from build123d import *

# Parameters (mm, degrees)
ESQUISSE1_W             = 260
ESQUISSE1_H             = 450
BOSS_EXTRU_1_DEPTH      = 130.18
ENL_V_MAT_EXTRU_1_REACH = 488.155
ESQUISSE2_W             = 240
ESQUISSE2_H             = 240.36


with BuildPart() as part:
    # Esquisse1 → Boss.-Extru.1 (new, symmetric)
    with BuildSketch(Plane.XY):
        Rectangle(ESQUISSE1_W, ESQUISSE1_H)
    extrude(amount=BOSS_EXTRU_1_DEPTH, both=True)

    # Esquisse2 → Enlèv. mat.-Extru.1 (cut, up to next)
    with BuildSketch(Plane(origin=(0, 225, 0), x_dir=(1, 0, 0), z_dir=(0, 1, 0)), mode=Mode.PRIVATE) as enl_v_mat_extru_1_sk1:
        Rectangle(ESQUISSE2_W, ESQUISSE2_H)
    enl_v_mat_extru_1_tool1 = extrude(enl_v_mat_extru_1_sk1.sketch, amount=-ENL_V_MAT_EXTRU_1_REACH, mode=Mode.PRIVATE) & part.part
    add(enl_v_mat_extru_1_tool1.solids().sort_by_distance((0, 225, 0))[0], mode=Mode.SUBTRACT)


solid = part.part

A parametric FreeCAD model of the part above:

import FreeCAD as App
import Part
import Sketcher

V = App.Vector
Q = App.Units.Quantity

doc = App.newDocument("Part")
body = doc.addObject("PartDesign::Body", "Body")

# Sketch on XY plane
sketch1 = body.newObject("Sketcher::SketchObject", "Sketch")
sketch1.AttachmentSupport = (doc.getObject("XY_Plane"), [""])
sketch1.MapMode = "FlatFace"
sketch1.addGeometry([
    Part.LineSegment(V(-130, 225, 0), V(-130, -225, 0)),
    Part.LineSegment(V(-130, -225, 0), V(130, -225, 0)),
    Part.LineSegment(V(130, -225, 0), V(130, 225, 0)),
    Part.LineSegment(V(130, 225, 0), V(-130, 225, 0)),
], False)
sketch1.addConstraint([
    Sketcher.Constraint("Coincident", 0, 2, 1, 1),
    Sketcher.Constraint("Coincident", 1, 2, 2, 1),
    Sketcher.Constraint("Coincident", 2, 2, 3, 1),
    Sketcher.Constraint("Coincident", 3, 2, 0, 1),
    Sketcher.Constraint("Vertical", 0),
    Sketcher.Constraint("Horizontal", 1),
    Sketcher.Constraint("Vertical", 2),
    Sketcher.Constraint("Horizontal", 3),
    Sketcher.Constraint("Symmetric", 0, 2, 2, 2, -1, 1),
    Sketcher.Constraint("DistanceX", 1, 1, 1, 2, Q("260 mm")),
    Sketcher.Constraint("DistanceY", 0, 2, 0, 1, Q("450 mm")),
])
pad1 = body.newObject("PartDesign::Pad", "Pad")
pad1.Profile = sketch1
pad1.Length = 260.36
pad1.Midplane = True

# Sketch on XZ plane
sketch2 = body.newObject("Sketcher::SketchObject", "Sketch001")
sketch2.AttachmentSupport = (doc.getObject("XZ_Plane"), [""])
sketch2.MapMode = "FlatFace"
sketch2.AttachmentOffset = App.Placement(V(0, 0, -225), App.Rotation())
sketch2.addGeometry([
    Part.LineSegment(V(-120, -120, 0), V(-120, 120, 0)),
    Part.LineSegment(V(-120, 120, 0), V(120, 120, 0)),
    Part.LineSegment(V(120, 120, 0), V(120, -120, 0)),
    Part.LineSegment(V(120, -120, 0), V(-120, -120, 0)),
], False)
sketch2.addConstraint([
    Sketcher.Constraint("Coincident", 0, 2, 1, 1),
    Sketcher.Constraint("Coincident", 1, 2, 2, 1),
    Sketcher.Constraint("Coincident", 2, 2, 3, 1),
    Sketcher.Constraint("Coincident", 3, 2, 0, 1),
    Sketcher.Constraint("Vertical", 0),
    Sketcher.Constraint("Horizontal", 1),
    Sketcher.Constraint("Vertical", 2),
    Sketcher.Constraint("Horizontal", 3),
    Sketcher.Constraint("Symmetric", 0, 2, 2, 2, -1, 1),
    Sketcher.Constraint("DistanceX", 1, 1, 1, 2, Q("240 mm")),
    Sketcher.Constraint("DistanceY", 0, 1, 0, 2, Q("240.36 mm")),
])
pocket1 = body.newObject("PartDesign::Pocket", "Pocket")
pocket1.Profile = sketch2
pocket1.Type = "UpToFirst"
pocket1.Reversed = True

doc.recompute()
